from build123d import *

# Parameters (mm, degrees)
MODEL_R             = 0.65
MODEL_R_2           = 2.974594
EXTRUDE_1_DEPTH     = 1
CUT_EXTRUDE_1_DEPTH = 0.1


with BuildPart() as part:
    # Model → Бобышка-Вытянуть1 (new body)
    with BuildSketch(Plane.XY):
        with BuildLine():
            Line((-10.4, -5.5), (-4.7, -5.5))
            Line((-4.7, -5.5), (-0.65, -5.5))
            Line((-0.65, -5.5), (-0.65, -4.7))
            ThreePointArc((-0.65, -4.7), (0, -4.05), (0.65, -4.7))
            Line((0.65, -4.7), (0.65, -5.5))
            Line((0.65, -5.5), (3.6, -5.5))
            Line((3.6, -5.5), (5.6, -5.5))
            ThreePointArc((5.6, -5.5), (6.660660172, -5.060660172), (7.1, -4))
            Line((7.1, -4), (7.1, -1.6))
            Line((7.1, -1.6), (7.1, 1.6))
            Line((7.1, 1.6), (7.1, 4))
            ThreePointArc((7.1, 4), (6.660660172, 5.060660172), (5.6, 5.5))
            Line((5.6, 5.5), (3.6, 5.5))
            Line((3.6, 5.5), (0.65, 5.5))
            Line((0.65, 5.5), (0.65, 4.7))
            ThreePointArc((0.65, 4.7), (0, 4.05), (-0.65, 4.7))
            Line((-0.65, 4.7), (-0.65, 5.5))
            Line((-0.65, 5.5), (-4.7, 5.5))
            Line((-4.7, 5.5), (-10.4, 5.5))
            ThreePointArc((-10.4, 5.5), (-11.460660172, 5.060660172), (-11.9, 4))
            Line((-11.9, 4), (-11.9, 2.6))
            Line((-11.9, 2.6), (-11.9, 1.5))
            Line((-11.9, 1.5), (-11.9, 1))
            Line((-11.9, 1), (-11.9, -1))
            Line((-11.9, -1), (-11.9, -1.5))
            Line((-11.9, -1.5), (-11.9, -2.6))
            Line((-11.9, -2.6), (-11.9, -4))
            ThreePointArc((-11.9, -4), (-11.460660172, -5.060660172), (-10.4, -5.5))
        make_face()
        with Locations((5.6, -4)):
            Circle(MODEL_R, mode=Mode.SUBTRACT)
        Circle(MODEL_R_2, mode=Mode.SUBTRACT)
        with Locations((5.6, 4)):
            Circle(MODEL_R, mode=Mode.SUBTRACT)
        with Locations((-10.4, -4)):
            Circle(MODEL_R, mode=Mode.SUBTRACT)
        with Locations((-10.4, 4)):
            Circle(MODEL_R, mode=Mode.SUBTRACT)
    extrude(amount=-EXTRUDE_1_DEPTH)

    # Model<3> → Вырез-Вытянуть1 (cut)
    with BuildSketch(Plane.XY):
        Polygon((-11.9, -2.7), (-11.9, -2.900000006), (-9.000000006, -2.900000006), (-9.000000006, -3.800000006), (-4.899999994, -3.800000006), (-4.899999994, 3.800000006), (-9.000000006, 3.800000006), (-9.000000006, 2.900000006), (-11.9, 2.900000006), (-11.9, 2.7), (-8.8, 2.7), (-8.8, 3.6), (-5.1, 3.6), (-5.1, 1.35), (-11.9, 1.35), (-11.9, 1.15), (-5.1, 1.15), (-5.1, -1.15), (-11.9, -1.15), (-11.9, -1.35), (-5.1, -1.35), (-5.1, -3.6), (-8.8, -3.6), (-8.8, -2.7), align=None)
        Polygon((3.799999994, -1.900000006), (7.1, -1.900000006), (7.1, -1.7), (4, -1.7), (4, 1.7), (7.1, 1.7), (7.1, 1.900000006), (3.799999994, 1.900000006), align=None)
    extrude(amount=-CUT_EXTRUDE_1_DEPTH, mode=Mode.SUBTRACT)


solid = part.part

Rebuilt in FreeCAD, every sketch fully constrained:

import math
import FreeCAD as App
import Part
import Sketcher
Q = App.Units.Quantity

doc = App.newDocument("Part")
body = doc.addObject("PartDesign::Body", "Body")

# Sketch on XY plane
sketch1 = doc.addObject("Sketcher::SketchObject", "Sketch")
body.addObject(sketch1)
sketch1.AttachmentSupport = (doc.XY_Plane, [""])
sketch1.MapMode = "FlatFace"
sketch1.addGeometry([
    Part.LineSegment(App.Vector(-10.4, -5.5, 0), App.Vector(-0.7, -5.5, 0)),  # 0
    Part.LineSegment(App.Vector(-0.7, -5.5, 0), App.Vector(-0.7, -4.7, 0)),  # 1
    Part.ArcOfCircle(Part.Circle(App.Vector(0, -4.7, 0), App.Vector(0, 0, 1), 0.7), math.radians(0), math.radians(180)),  # 2
    Part.LineSegment(App.Vector(0.7, -4.7, 0), App.Vector(0.7, -5.5, 0)),  # 3
    Part.LineSegment(App.Vector(0.7, -5.5, 0), App.Vector(5.6, -5.5, 0)),  # 4
    Part.ArcOfCircle(Part.Circle(App.Vector(5.6, -4, 0), App.Vector(0, 0, 1), 1.5), math.radians(-90), math.radians(0)),  # 5
    Part.LineSegment(App.Vector(7.1, -4, 0), App.Vector(7.1, 4, 0)),  # 6
    Part.ArcOfCircle(Part.Circle(App.Vector(5.6, 4, 0), App.Vector(0, 0, 1), 1.5), math.radians(0), math.radians(90)),  # 7
    Part.LineSegment(App.Vector(5.6, 5.5, 0), App.Vector(0.7, 5.5, 0)),  # 8
    Part.LineSegment(App.Vector(0.7, 5.5, 0), App.Vector(0.7, 4.7, 0)),  # 9
    Part.ArcOfCircle(Part.Circle(App.Vector(0, 4.7, 0), App.Vector(0, 0, 1), 0.7), math.radians(180), math.radians(360)),  # 10
    Part.LineSegment(App.Vector(-0.7, 4.7, 0), App.Vector(-0.7, 5.5, 0)),  # 11
    Part.LineSegment(App.Vector(-0.7, 5.5, 0), App.Vector(-10.4, 5.5, 0)),  # 12
    Part.ArcOfCircle(Part.Circle(App.Vector(-10.4, 4, 0), App.Vector(0, 0, 1), 1.5), math.radians(90), math.radians(180)),  # 13
    Part.LineSegment(App.Vector(-11.9, 4, 0), App.Vector(-11.9, -4, 0)),  # 14
    Part.ArcOfCircle(Part.Circle(App.Vector(-10.4, -4, 0), App.Vector(0, 0, 1), 1.5), math.radians(180), math.radians(270)),  # 15
    Part.Circle(App.Vector(-10.4, -4, 0), App.Vector(0, 0, 1), 0.7),  # 16
    Part.Circle(App.Vector(5.6, -4, 0), App.Vector(0, 0, 1), 0.7),  # 17
    Part.Circle(App.Vector(-10.4, 4, 0), App.Vector(0, 0, 1), 0.7),  # 18
    Part.Circle(App.Vector(0, 0, 0), App.Vector(0, 0, 1), 3),  # 19
    Part.Circle(App.Vector(5.6, 4, 0), App.Vector(0, 0, 1), 0.7),  # 20
], False)
sketch1.addConstraint([
    Sketcher.Constraint("Coincident", 0, 2, 1, 1),
    Sketcher.Constraint("Tangent", 1, 2, 2, 2),
    Sketcher.Constraint("Tangent", 2, 1, 3, 1),
    Sketcher.Constraint("Coincident", 3, 2, 4, 1),
    Sketcher.Constraint("Tangent", 4, 2, 5, 1),
    Sketcher.Constraint("Tangent", 5, 2, 6, 1),
    Sketcher.Constraint("Tangent", 6, 2, 7, 1),
    Sketcher.Constraint("Tangent", 7, 2, 8, 1),
    Sketcher.Constraint("Coincident", 8, 2, 9, 1),
    Sketcher.Constraint("Tangent", 9, 2, 10, 2),
    Sketcher.Constraint("Tangent", 10, 1, 11, 1),
    Sketcher.Constraint("Coincident", 11, 2, 12, 1),
    Sketcher.Constraint("Tangent", 12, 2, 13, 1),
    Sketcher.Constraint("Tangent", 13, 2, 14, 1),
    Sketcher.Constraint("Tangent", 14, 2, 15, 1),
    Sketcher.Constraint("Tangent", 15, 2, 0, 1),
    Sketcher.Constraint("Horizontal", 0),
    Sketcher.Constraint("Vertical", 1),
    Sketcher.Constraint("Vertical", 3),
    Sketcher.Constraint("Horizontal", 4),
    Sketcher.Constraint("Vertical", 6),
    Sketcher.Constraint("Horizontal", 8),
    Sketcher.Constraint("Vertical", 9),
    Sketcher.Constraint("Vertical", 11),
    Sketcher.Constraint("Horizontal", 12),
    Sketcher.Constraint("Vertical", 14),
    Sketcher.Constraint("Coincident", 19, 3, -1, 1),
    Sketcher.Constraint("Coincident", 16, 3, 15, 3),
    Sketcher.Constraint("Coincident", 17, 3, 5, 3),
    Sketcher.Constraint("Coincident", 18, 3, 13, 3),
    Sketcher.Constraint("Coincident", 20, 3, 7, 3),
    Sketcher.Constraint("Equal", 5, 7),
    Sketcher.Constraint("Equal", 2, 10),
    Sketcher.Constraint("Equal", 7, 13),
    Sketcher.Constraint("Equal", 13, 15),
    Sketcher.Constraint("Equal", 10, 16),
    Sketcher.Constraint("Equal", 16, 17),
    Sketcher.Constraint("Equal", 17, 18),
    Sketcher.Constraint("Equal", 18, 20),
    Sketcher.Constraint("Symmetric", 2, 3, 10, 3, -1, 1),
    Sketcher.Constraint("Symmetric", 0, 2, 3, 2, -2),
    Sketcher.Constraint("Horizontal", 7, 3, 13, 3),
    Sketcher.Constraint("Equal", 3, 9),
    Sketcher.Constraint("Diameter", 16, Q("1.3 mm")),
    Sketcher.Constraint("Radius", 5, Q("1.5 mm")),
    Sketcher.Constraint("DistanceY", 6, 1, 6, 2, Q("8 mm")),
    Sketcher.Constraint("DistanceY", 1, 1, 1, 2, Q("0.8 mm")),
    Sketcher.Constraint("DistanceX", 13, 3, 7, 3, Q("16 mm")),
    Sketcher.Constraint("DistanceX", 0, 1, 0, 2, Q("9.75 mm")),
    Sketcher.Constraint("Diameter", 19, Q("5.949188 mm")),
])
pad1 = doc.addObject("PartDesign::Pad", "Pad")
body.addObject(pad1)
pad1.Profile = sketch1
pad1.Length = 1
pad1.Reversed = True

# Sketch on XY plane
sketch2 = doc.addObject("Sketcher::SketchObject", "Sketch001")
body.addObject(sketch2)
sketch2.AttachmentSupport = (doc.XY_Plane, [""])
sketch2.MapMode = "FlatFace"
sketch2.addGeometry([
    Part.LineSegment(App.Vector(-11.9, -2.7, 0), App.Vector(-11.9, -2.9, 0)),  # 0
    Part.LineSegment(App.Vector(-11.9, -2.9, 0), App.Vector(-9, -2.9, 0)),  # 1
    Part.LineSegment(App.Vector(-9, -2.9, 0), App.Vector(-9, -3.8, 0)),  # 2
    Part.LineSegment(App.Vector(-9, -3.8, 0), App.Vector(-4.9, -3.8, 0)),  # 3
    Part.LineSegment(App.Vector(-4.9, -3.8, 0), App.Vector(-4.9, 3.8, 0)),  # 4
    Part.LineSegment(App.Vector(-4.9, 3.8, 0), App.Vector(-9, 3.8, 0)),  # 5
    Part.LineSegment(App.Vector(-9, 3.8, 0), App.Vector(-9, 2.9, 0)),  # 6
    Part.LineSegment(App.Vector(-9, 2.9, 0), App.Vector(-11.9, 2.9, 0)),  # 7
    Part.LineSegment(App.Vector(-11.9, 2.9, 0), App.Vector(-11.9, 2.7, 0)),  # 8
    Part.LineSegment(App.Vector(-11.9, 2.7, 0), App.Vector(-8.8, 2.7, 0)),  # 9
    Part.LineSegment(App.Vector(-8.8, 2.7, 0), App.Vector(-8.8, 3.6, 0)),  # 10
    Part.LineSegment(App.Vector(-8.8, 3.6, 0), App.Vector(-5.1, 3.6, 0)),  # 11
    Part.LineSegment(App.Vector(-5.1, 3.6, 0), App.Vector(-5.1, 1.35, 0)),  # 12
    Part.LineSegment(App.Vector(-5.1, 1.35, 0), App.Vector(-11.9, 1.35, 0)),  # 13
    Part.LineSegment(App.Vector(-11.9, 1.35, 0), App.Vector(-11.9, 1.15, 0)),  # 14
    Part.LineSegment(App.Vector(-11.9, 1.15, 0), App.Vector(-5.1, 1.15, 0)),  # 15
    Part.LineSegment(App.Vector(-5.1, 1.15, 0), App.Vector(-5.1, -1.15, 0)),  # 16
    Part.LineSegment(App.Vector(-5.1, -1.15, 0), App.Vector(-11.9, -1.15, 0)),  # 17
    Part.LineSegment(App.Vector(-11.9, -1.15, 0), App.Vector(-11.9, -1.35, 0)),  # 18
    Part.LineSegment(App.Vector(-11.9, -1.35, 0), App.Vector(-5.1, -1.35, 0)),  # 19
    Part.LineSegment(App.Vector(-5.1, -1.35, 0), App.Vector(-5.1, -3.6, 0)),  # 20
    Part.LineSegment(App.Vector(-5.1, -3.6, 0), App.Vector(-8.8, -3.6, 0)),  # 21
    Part.LineSegment(App.Vector(-8.8, -3.6, 0), App.Vector(-8.8, -2.7, 0)),  # 22
    Part.LineSegment(App.Vector(-8.8, -2.7, 0), App.Vector(-11.9, -2.7, 0)),  # 23
    Part.LineSegment(App.Vector(3.8, -1.9, 0), App.Vector(7.1, -1.9, 0)),  # 24
    Part.LineSegment(App.Vector(7.1, -1.9, 0), App.Vector(7.1, -1.7, 0)),  # 25
    Part.LineSegment(App.Vector(7.1, -1.7, 0), App.Vector(4, -1.7, 0)),  # 26
    Part.LineSegment(App.Vector(4, -1.7, 0), App.Vector(4, 1.7, 0)),  # 27
    Part.LineSegment(App.Vector(4, 1.7, 0), App.Vector(7.1, 1.7, 0)),  # 28
    Part.LineSegment(App.Vector(7.1, 1.7, 0), App.Vector(7.1, 1.9, 0)),  # 29
    Part.LineSegment(App.Vector(7.1, 1.9, 0), App.Vector(3.8, 1.9, 0)),  # 30
    Part.LineSegment(App.Vector(3.8, 1.9, 0), App.Vector(3.8, -1.9, 0)),  # 31
], False)
sketch2.addConstraint([
    Sketcher.Constraint("Coincident", 0, 2, 1, 1),
    Sketcher.Constraint("Coincident", 1, 2, 2, 1),
    Sketcher.Constraint("Coincident", 2, 2, 3, 1),
    Sketcher.Constraint("Coincident", 3, 2, 4, 1),
    Sketcher.Constraint("Coincident", 4, 2, 5, 1),
    Sketcher.Constraint("Coincident", 5, 2, 6, 1),
    Sketcher.Constraint("Coincident", 6, 2, 7, 1),
    Sketcher.Constraint("Coincident", 7, 2, 8, 1),
    Sketcher.Constraint("Coincident", 8, 2, 9, 1),
    Sketcher.Constraint("Coincident", 9, 2, 10, 1),
    Sketcher.Constraint("Coincident", 10, 2, 11, 1),
    Sketcher.Constraint("Coincident", 11, 2, 12, 1),
    Sketcher.Constraint("Coincident", 12, 2, 13, 1),
    Sketcher.Constraint("Coincident", 13, 2, 14, 1),
    Sketcher.Constraint("Coincident", 14, 2, 15, 1),
    Sketcher.Constraint("Coincident", 15, 2, 16, 1),
    Sketcher.Constraint("Coincident", 16, 2, 17, 1),
    Sketcher.Constraint("Coincident", 17, 2, 18, 1),
    Sketcher.Constraint("Coincident", 18, 2, 19, 1),
    Sketcher.Constraint("Coincident", 19, 2, 20, 1),
    Sketcher.Constraint("Coincident", 20, 2, 21, 1),
    Sketcher.Constraint("Coincident", 21, 2, 22, 1),
    Sketcher.Constraint("Coincident", 22, 2, 23, 1),
    Sketcher.Constraint("Coincident", 23, 2, 0, 1),
    Sketcher.Constraint("Coincident", 24, 2, 25, 1),
    Sketcher.Constraint("Coincident", 25, 2, 26, 1),
    Sketcher.Constraint("Coincident", 26, 2, 27, 1),
    Sketcher.Constraint("Coincident", 27, 2, 28, 1),
    Sketcher.Constraint("Coincident", 28, 2, 29, 1),
    Sketcher.Constraint("Coincident", 29, 2, 30, 1),
    Sketcher.Constraint("Coincident", 30, 2, 31, 1),
    Sketcher.Constraint("Coincident", 31, 2, 24, 1),
    Sketcher.Constraint("Vertical", 0),
    Sketcher.Constraint("Horizontal", 1),
    Sketcher.Constraint("Vertical", 2),
    Sketcher.Constraint("Horizontal", 3),
    Sketcher.Constraint("Vertical", 4),
    Sketcher.Constraint("Horizontal", 5),
    Sketcher.Constraint("Vertical", 6),
    Sketcher.Constraint("Horizontal", 7),
    Sketcher.Constraint("Vertical", 8),
    Sketcher.Constraint("Horizontal", 9),
    Sketcher.Constraint("Vertical", 10),
    Sketcher.Constraint("Horizontal", 11),
    Sketcher.Constraint("Vertical", 12),
    Sketcher.Constraint("Horizontal", 13),
    Sketcher.Constraint("Vertical", 14),
    Sketcher.Constraint("Horizontal", 15),
    Sketcher.Constraint("Vertical", 16),
    Sketcher.Constraint("Horizontal", 17),
    Sketcher.Constraint("Vertical", 18),
    Sketcher.Constraint("Horizontal", 19),
    Sketcher.Constraint("Vertical", 20),
    Sketcher.Constraint("Horizontal", 21),
    Sketcher.Constraint("Vertical", 22),
    Sketcher.Constraint("Horizontal", 23),
    Sketcher.Constraint("Horizontal", 24),
    Sketcher.Constraint("Vertical", 25),
    Sketcher.Constraint("Horizontal", 26),
    Sketcher.Constraint("Vertical", 27),
    Sketcher.Constraint("Horizontal", 28),
    Sketcher.Constraint("Vertical", 29),
    Sketcher.Constraint("Horizontal", 30),
    Sketcher.Constraint("Vertical", 31),
    Sketcher.Constraint("Symmetric", 2, 2, 5, 2, -1),
    Sketcher.Constraint("Symmetric", 0, 2, 7, 2, -1),
    Sketcher.Constraint("Symmetric", 14, 2, 17, 2, -1),
    Sketcher.Constraint("Symmetric", 12, 2, 19, 2, -1),
    Sketcher.Constraint("Symmetric", 10, 2, 21, 2, -1),
    Sketcher.Constraint("Symmetric", 25, 2, 28, 2, -1),
    Sketcher.Constraint("Vertical", 8, 2, 13, 2),
    Sketcher.Constraint("Vertical", 12, 2, 15, 2),
    Sketcher.Constraint("Equal", 23, 26),
    Sketcher.Constraint("Equal", 0, 8),
    Sketcher.Constraint("Equal", 6, 10),
    Sketcher.Constraint("Equal", 8, 14),
    Sketcher.Constraint("Equal", 18, 25),
    Sketcher.Constraint("Equal", 25, 29),
    Sketcher.Constraint("DistanceX", 1, 1, 1, 2, Q("2.9 mm")),
    Sketcher.Constraint("DistanceX", 3, 1, 3, 2, Q("4.1 mm")),
    Sketcher.Constraint("DistanceX", 9, 1, 9, 2, Q("3.1 mm")),
    Sketcher.Constraint("DistanceX", 11, 1, 11, 2, Q("3.7 mm")),
    Sketcher.Constraint("DistanceX", 24, 1, 24, 2, Q("3.3 mm")),
    Sketcher.Constraint("DistanceY", 0, 2, 0, 1, Q("0.2 mm")),
    Sketcher.Constraint("DistanceY", 2, 2, 2, 1, Q("0.9 mm")),
    Sketcher.Constraint("DistanceY", 4, 1, 4, 2, Q("7.6 mm")),
    Sketcher.Constraint("DistanceY", 16, 2, 16, 1, Q("2.3 mm")),
    Sketcher.Constraint("DistanceY", 27, 1, 27, 2, Q("3.4 mm")),
    Sketcher.Constraint("DistanceX", 1, 2, -1, 1, Q("9 mm")),
    Sketcher.Constraint("DistanceX", -1, 1, 26, 2, Q("4 mm")),
])
pocket1 = doc.addObject("PartDesign::Pocket", "Pocket")
body.addObject(pocket1)
pocket1.Profile = sketch2
pocket1.Length = 0.1

doc.recompute()
